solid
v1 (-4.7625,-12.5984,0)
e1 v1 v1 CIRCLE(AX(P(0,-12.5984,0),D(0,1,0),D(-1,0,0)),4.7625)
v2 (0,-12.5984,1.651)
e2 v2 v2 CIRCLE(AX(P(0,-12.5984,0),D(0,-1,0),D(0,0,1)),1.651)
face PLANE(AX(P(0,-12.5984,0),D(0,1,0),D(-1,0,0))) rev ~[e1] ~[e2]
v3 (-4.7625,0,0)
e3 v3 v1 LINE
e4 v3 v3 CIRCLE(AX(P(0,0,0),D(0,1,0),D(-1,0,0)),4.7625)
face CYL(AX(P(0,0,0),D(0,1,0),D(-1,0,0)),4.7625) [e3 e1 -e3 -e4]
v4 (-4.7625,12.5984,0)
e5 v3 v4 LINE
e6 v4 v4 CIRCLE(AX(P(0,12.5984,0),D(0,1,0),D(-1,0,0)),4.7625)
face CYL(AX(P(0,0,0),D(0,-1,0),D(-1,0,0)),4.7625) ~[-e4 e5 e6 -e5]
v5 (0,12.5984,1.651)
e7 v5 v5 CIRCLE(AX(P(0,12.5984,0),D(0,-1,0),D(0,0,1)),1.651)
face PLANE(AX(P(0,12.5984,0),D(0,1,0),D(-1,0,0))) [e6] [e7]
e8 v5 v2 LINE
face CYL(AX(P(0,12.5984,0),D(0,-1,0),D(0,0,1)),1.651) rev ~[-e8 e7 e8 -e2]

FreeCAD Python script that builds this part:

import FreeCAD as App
import Part
import Sketcher
Q = App.Units.Quantity

doc = App.newDocument("Part")
params = doc.addObject("Spreadsheet::Sheet", "Params")
for row, (alias, value) in enumerate([
    ("sketch1_diameter", "0.375 in"),
    ("pad1_length", "0.992 in"),
    ("sketch2_diameter", "0.13 in"),
    ("hole_diameter", "0.13 in"),
], start=1):
    params.set(f"A{row}", alias)
    params.set(f"B{row}", "=" + value)
    params.setAlias(f"B{row}", alias)

body = doc.addObject("PartDesign::Body", "Body")

# Sketch on XZ plane
sketch1 = body.newObject("Sketcher::SketchObject", "Sketch")
sketch1.AttachmentSupport = (doc.getObject("XZ_Plane"), [""])
sketch1.MapMode = "FlatFace"
sketch1.addGeometry(Part.Circle(App.Vector(0, 0, 0), App.Vector(0, 0, 1), 4.8), False)
sketch1.addConstraint([
    Sketcher.Constraint("Coincident", 0, 3, -1, 1),
    Sketcher.Constraint("Diameter", 0, Q("0.375 in")),
])
sketch1.setExpression("Constraints[1]", "Params.sketch1_diameter")
pad1 = body.newObject("PartDesign::Pad", "Pad")
pad1.Profile = sketch1
pad1.setExpression("Length", "Params.pad1_length")
pad1.Midplane = True

# Sketch on XZ plane
sketch2 = body.newObject("Sketcher::SketchObject", "Sketch001")
sketch2.AttachmentSupport = (doc.getObject("XZ_Plane"), [""])
sketch2.MapMode = "FlatFace"
sketch2.AttachmentOffset = App.Placement(App.Vector(0, 0, -0.496 * 25.4), App.Rotation())
sketch2.addGeometry(Part.Circle(App.Vector(0, 0, 0), App.Vector(0, 0, 1), 1.7), False)
sketch2.addConstraint([
    Sketcher.Constraint("Coincident", 0, 3, -1, 1),
    Sketcher.Constraint("Diameter", 0, Q("0.13 in")),
])
sketch2.setExpression("Constraints[1]", "Params.sketch2_diameter")
doc.recompute()
hole = body.newObject("PartDesign::Hole", "Hole")
hole.Profile = sketch2
hole.ThreadType = "None"
hole.setExpression("Diameter", "Params.hole_diameter")
hole.DepthType = "ThroughAll"
hole.Reversed = True

doc.recompute()
